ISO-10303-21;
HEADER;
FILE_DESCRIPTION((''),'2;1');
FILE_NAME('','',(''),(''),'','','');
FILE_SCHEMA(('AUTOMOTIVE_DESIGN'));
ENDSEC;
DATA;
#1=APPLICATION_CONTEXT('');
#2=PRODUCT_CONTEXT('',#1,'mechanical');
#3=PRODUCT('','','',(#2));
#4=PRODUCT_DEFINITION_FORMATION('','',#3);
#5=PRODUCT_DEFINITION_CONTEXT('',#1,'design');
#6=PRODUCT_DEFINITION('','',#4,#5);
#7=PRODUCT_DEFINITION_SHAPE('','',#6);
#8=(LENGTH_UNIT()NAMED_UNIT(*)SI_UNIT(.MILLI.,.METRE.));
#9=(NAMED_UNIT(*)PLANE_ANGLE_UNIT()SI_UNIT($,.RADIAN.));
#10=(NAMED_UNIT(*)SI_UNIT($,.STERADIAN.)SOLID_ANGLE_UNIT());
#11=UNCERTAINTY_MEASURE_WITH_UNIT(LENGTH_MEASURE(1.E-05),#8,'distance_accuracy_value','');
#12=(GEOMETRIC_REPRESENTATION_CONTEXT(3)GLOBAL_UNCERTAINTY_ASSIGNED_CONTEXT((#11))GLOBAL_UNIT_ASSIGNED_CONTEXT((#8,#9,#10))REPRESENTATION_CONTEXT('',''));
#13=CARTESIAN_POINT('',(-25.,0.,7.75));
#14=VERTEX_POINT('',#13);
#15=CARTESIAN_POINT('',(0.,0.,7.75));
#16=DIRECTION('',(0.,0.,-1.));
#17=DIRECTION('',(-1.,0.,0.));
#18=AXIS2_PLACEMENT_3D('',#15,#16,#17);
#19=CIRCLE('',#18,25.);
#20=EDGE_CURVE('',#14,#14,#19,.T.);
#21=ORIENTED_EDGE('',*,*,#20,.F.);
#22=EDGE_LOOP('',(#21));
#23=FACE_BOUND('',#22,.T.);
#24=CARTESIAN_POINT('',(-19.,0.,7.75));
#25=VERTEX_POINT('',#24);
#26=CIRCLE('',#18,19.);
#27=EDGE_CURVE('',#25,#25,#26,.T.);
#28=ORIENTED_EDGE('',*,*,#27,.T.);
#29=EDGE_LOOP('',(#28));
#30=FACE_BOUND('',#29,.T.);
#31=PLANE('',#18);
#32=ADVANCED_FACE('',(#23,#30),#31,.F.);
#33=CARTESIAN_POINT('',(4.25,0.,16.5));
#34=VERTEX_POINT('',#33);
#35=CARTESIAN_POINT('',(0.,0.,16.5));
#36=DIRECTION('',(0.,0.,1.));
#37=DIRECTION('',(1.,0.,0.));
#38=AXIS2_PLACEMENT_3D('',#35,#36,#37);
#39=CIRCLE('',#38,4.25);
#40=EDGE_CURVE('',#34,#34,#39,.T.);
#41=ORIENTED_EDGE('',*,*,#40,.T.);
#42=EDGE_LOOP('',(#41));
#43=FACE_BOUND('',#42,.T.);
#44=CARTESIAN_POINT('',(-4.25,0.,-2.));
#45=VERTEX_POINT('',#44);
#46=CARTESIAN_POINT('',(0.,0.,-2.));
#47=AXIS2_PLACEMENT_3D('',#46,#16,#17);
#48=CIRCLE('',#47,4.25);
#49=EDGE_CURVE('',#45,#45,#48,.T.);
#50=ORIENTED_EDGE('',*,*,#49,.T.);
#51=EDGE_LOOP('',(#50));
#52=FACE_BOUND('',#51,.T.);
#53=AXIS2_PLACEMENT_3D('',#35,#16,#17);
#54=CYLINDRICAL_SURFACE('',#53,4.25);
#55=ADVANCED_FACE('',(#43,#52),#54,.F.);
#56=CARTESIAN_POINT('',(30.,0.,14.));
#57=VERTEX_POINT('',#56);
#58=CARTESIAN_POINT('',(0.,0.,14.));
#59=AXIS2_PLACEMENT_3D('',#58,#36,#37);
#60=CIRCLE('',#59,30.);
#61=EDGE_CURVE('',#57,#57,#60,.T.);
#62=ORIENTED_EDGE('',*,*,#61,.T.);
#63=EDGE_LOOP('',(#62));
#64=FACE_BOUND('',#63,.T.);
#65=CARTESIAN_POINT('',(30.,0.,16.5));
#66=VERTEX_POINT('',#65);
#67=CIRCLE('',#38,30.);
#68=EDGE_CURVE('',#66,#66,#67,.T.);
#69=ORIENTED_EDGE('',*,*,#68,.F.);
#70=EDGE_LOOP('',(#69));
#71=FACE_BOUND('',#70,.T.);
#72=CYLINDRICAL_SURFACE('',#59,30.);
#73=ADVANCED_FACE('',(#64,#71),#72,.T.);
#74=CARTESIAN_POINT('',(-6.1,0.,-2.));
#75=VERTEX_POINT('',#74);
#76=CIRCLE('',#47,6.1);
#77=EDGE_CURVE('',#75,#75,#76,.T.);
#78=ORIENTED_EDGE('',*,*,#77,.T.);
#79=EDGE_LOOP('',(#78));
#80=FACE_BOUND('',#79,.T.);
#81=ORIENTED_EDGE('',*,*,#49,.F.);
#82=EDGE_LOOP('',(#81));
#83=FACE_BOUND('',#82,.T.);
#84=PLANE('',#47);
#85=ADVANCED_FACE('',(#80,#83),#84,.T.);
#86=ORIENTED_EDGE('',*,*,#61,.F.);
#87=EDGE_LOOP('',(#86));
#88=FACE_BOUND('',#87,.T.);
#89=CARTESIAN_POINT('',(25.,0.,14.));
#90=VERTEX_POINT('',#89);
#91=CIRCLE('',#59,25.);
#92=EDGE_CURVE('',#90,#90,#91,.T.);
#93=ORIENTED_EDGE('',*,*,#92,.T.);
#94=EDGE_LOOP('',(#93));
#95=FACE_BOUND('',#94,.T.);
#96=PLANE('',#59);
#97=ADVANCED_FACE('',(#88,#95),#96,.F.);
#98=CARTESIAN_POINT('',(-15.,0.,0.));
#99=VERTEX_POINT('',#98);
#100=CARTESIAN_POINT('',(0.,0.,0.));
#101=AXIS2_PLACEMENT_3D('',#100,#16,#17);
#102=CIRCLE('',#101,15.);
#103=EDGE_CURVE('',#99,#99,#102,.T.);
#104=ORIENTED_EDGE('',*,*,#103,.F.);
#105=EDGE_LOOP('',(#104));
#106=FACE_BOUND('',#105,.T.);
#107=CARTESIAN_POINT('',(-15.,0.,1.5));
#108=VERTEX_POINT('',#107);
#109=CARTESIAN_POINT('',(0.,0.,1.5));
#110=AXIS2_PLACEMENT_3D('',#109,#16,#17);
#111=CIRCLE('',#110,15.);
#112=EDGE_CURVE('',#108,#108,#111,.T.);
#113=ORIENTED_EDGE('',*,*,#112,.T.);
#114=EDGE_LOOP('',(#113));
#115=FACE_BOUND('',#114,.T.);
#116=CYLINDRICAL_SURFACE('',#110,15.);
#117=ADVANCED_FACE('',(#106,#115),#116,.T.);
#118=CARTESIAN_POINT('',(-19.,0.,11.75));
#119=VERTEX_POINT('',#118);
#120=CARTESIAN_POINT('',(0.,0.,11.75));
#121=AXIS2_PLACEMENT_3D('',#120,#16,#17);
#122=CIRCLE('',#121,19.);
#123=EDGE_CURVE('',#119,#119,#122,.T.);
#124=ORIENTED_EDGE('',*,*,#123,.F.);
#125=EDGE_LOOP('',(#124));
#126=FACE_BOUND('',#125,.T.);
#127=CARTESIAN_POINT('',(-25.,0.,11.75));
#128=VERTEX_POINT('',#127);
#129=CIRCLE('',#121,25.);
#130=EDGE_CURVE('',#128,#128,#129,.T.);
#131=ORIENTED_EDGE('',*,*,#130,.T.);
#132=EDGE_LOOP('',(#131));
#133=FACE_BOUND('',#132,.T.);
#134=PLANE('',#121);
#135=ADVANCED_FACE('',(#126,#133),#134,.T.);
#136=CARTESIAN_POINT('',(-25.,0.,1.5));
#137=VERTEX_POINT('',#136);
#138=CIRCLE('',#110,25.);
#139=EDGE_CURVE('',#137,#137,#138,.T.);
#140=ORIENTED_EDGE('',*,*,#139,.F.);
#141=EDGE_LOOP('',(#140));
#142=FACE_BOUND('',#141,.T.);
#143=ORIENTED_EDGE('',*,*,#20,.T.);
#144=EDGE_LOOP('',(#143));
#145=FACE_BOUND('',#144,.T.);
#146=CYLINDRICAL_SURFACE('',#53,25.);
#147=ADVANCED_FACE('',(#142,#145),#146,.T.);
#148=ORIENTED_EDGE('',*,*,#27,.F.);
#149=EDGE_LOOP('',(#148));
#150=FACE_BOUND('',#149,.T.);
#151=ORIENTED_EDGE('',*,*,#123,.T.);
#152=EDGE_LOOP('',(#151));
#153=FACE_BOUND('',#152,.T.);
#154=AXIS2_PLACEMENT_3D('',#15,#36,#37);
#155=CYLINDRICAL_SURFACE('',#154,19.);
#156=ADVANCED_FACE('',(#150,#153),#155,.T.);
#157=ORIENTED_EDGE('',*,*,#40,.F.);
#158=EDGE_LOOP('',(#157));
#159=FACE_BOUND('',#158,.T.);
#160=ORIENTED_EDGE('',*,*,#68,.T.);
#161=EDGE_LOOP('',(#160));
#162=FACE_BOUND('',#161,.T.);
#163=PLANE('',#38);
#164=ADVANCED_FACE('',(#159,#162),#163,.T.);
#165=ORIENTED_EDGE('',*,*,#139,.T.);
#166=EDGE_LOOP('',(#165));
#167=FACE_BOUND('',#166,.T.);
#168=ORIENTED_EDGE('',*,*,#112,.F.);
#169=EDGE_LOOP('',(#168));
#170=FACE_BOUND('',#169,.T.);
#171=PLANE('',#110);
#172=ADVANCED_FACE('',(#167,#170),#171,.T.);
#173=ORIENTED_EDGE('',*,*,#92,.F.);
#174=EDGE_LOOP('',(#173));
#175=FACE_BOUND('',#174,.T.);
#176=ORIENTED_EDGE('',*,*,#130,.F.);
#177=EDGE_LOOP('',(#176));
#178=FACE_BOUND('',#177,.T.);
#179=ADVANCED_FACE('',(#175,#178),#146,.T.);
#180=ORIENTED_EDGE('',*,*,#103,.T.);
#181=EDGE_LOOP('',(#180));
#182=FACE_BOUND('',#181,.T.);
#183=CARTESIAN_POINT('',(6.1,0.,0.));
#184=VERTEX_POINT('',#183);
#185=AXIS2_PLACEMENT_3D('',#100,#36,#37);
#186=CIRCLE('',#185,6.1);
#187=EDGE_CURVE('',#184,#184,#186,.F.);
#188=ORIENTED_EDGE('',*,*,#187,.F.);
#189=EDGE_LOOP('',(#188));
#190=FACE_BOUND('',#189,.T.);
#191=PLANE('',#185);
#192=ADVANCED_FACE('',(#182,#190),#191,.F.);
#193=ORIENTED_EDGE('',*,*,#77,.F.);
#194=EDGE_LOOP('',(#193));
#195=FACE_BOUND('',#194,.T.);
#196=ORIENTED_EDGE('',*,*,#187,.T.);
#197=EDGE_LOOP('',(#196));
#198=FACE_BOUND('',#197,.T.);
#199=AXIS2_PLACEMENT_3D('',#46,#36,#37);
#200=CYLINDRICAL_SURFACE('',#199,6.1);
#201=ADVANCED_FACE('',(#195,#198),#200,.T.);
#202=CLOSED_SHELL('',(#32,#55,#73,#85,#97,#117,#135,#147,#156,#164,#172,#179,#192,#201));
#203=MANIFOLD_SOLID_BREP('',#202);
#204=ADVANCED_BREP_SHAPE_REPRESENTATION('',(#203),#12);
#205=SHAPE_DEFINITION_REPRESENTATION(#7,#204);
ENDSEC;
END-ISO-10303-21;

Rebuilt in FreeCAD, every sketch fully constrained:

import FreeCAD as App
import Part
import Sketcher
from FreeCAD import Vector
Q = App.Units.Quantity

doc = App.newDocument("Part")
body = doc.addObject("PartDesign::Body", "Body")

sketch1 = body.newObject("Sketcher::SketchObject", "Sketch")
sketch1.AttachmentSupport = (doc.getObject("XY_Plane"), [""])
sketch1.MapMode = "FlatFace"
sketch1.addGeometry([
    Part.Circle(Vector(0, 0, 0), Vector(0, 0, 1), 25),
    Part.Circle(Vector(0, 0, 0), Vector(0, 0, 1), 11),
], False)
sketch1.addConstraint([
    Sketcher.Constraint("Coincident", 0, 3, -1, 1),
    Sketcher.Constraint("Coincident", 1, 3, -1, 1),
    Sketcher.Constraint("Diameter", 0, Q("50 mm")),
    Sketcher.Constraint("Diameter", 1, Q("22 mm")),
])
pad1 = body.newObject("PartDesign::Pad", "Pad")
pad1.Profile = sketch1
pad1.Length = 16.5

sketch2 = body.newObject("Sketcher::SketchObject", "Sketch001")
sketch2.AttachmentSupport = (doc.getObject("XY_Plane"), [""])
sketch2.MapMode = "FlatFace"
sketch2.AttachmentOffset = App.Placement(Vector(0, 0, 6), App.Rotation())
sketch2.addGeometry([
    Part.Circle(Vector(0, 0, 0), Vector(0, 0, 1), 11),
    Part.Circle(Vector(0, 0, 0), Vector(0, 0, 1), 10),
], False)
sketch2.addConstraint([
    Sketcher.Constraint("Coincident", 0, 3, -1, 1),
    Sketcher.Constraint("Coincident", 1, 3, -1, 1),
    Sketcher.Constraint("Diameter", 0, Q("22 mm")),
    Sketcher.Constraint("Diameter", 1, Q("19 mm")),
])
pad2 = body.newObject("PartDesign::Pad", "Pad001")
pad2.Profile = sketch2
pad2.Length = 10.5

sketch3 = body.newObject("Sketcher::SketchObject", "Sketch002")
sketch3.AttachmentSupport = (doc.getObject("XY_Plane"), [""])
sketch3.MapMode = "FlatFace"
sketch3.AttachmentOffset = App.Placement(Vector(0, 0, 14.5), App.Rotation())
sketch3.addGeometry([
    Part.Circle(Vector(0, 0, 0), Vector(0, 0, 1), 11),
    Part.Circle(Vector(0, 0, 0), Vector(0, 0, 1), 4),
], False)
sketch3.addConstraint([
    Sketcher.Constraint("Coincident", 0, 3, -1, 1),
    Sketcher.Constraint("Coincident", 1, 3, -1, 1),
    Sketcher.Constraint("Diameter", 0, Q("22 mm")),
    Sketcher.Constraint("Diameter", 1, Q("8 mm")),
])
pad3 = body.newObject("PartDesign::Pad", "Pad002")
pad3.Profile = sketch3
pad3.Length = 2

sketch4 = body.newObject("Sketcher::SketchObject", "Sketch003")
sketch4.AttachmentSupport = (doc.getObject("XY_Plane"), [""])
sketch4.MapMode = "FlatFace"
sketch4.AttachmentOffset = App.Placement(Vector(0, 0, 14), App.Rotation())
sketch4.addGeometry([
    Part.Circle(Vector(0, 0, 0), Vector(0, 0, 1), 30),
    Part.Circle(Vector(0, 0, 0), Vector(0, 0, 1), 25),
], False)
sketch4.addConstraint([
    Sketcher.Constraint("Coincident", 0, 3, -1, 1),
    Sketcher.Constraint("Coincident", 1, 3, -1, 1),
    Sketcher.Constraint("Diameter", 0, Q("60 mm")),
    Sketcher.Constraint("Diameter", 1, Q("50 mm")),
])
pad4 = body.newObject("PartDesign::Pad", "Pad003")
pad4.Profile = sketch4
pad4.Length = 2.5

sketch5 = body.newObject("Sketcher::SketchObject", "Sketch004")
sketch5.AttachmentSupport = (doc.getObject("XY_Plane"), [""])
sketch5.MapMode = "FlatFace"
sketch5.AttachmentOffset = App.Placement(Vector(0, 0, 7.75), App.Rotation())
sketch5.addGeometry([
    Part.Circle(Vector(0, 0, 0), Vector(0, 0, 1), 25),
    Part.Circle(Vector(0, 0, 0), Vector(0, 0, 1), 19),
], False)
sketch5.addConstraint([
    Sketcher.Constraint("Coincident", 0, 3, -1, 1),
    Sketcher.Constraint("Coincident", 1, 3, -1, 1),
    Sketcher.Constraint("Diameter", 0, Q("50 mm")),
    Sketcher.Constraint("Diameter", 1, Q("38 mm")),
])
pocket1 = body.newObject("PartDesign::Pocket", "Pocket")
pocket1.Profile = sketch5
pocket1.Length = 4
pocket1.Reversed = True

sketch6 = body.newObject("Sketcher::SketchObject", "Sketch005")
sketch6.AttachmentSupport = (doc.getObject("XY_Plane"), [""])
sketch6.MapMode = "FlatFace"
sketch6.addGeometry([
    Part.Circle(Vector(0, 0, 0), Vector(0, 0, 1), 11),
    Part.Circle(Vector(0, 0, 0), Vector(0, 0, 1), 4.2),
], False)
sketch6.addConstraint([
    Sketcher.Constraint("Coincident", 0, 3, -1, 1),
    Sketcher.Constraint("Coincident", 1, 3, -1, 1),
    Sketcher.Constraint("Diameter", 0, Q("22 mm")),
    Sketcher.Constraint("Diameter", 1, Q("8.5 mm")),
])
pad5 = body.newObject("PartDesign::Pad", "Pad004")
pad5.Profile = sketch6
pad5.Length = 14.5

sketch7 = body.newObject("Sketcher::SketchObject", "Sketch006")
sketch7.AttachmentSupport = (doc.getObject("XY_Plane"), [""])
sketch7.MapMode = "FlatFace"
sketch7.AttachmentOffset = App.Placement(Vector(0, 0, -2), App.Rotation())
sketch7.addGeometry([
    Part.Circle(Vector(0, 0, 0), Vector(0, 0, 1), 6.1),
    Part.Circle(Vector(0, 0, 0), Vector(0, 0, 1), 4),
], False)
sketch7.addConstraint([
    Sketcher.Constraint("Coincident", 0, 3, -1, 1),
    Sketcher.Constraint("Coincident", 1, 3, -1, 1),
    Sketcher.Constraint("Diameter", 1, Q("8 mm")),
    Sketcher.Constraint("Diameter", 0, Q("12.2 mm")),
])
pad6 = body.newObject("PartDesign::Pad", "Pad005")
pad6.Profile = sketch7
pad6.Length = 2

sketch8 = body.newObject("Sketcher::SketchObject", "Sketch007")
sketch8.AttachmentSupport = (doc.getObject("XY_Plane"), [""])
sketch8.MapMode = "FlatFace"
sketch8.addGeometry([
    Part.Circle(Vector(0, 0, 0), Vector(0, 0, 1), 25),
    Part.Circle(Vector(0, 0, 0), Vector(0, 0, 1), 15),
], False)
sketch8.addConstraint([
    Sketcher.Constraint("Coincident", 0, 3, -1, 1),
    Sketcher.Constraint("Coincident", 1, 3, -1, 1),
    Sketcher.Constraint("Diameter", 0, Q("50 mm")),
    Sketcher.Constraint("Diameter", 1, Q("30 mm")),
])
pocket2 = body.newObject("PartDesign::Pocket", "Pocket001")
pocket2.Profile = sketch8
pocket2.Length = 1.5
pocket2.Reversed = True

sketch9 = body.newObject("Sketcher::SketchObject", "Sketch008")
sketch9.AttachmentSupport = (doc.getObject("XY_Plane"), [""])
sketch9.MapMode = "FlatFace"
sketch9.AttachmentOffset = App.Placement(Vector(0, 0, 14.5), App.Rotation())
sketch9.addGeometry(Part.Circle(Vector(0, 0, 0), Vector(0, 0, 1), 4.2), False)
sketch9.addConstraint([
    Sketcher.Constraint("Coincident", 0, 3, -1, 1),
    Sketcher.Constraint("Diameter", 0, Q("8.5 mm")),
])
pocket3 = body.newObject("PartDesign::Pocket", "Pocket002")
pocket3.Profile = sketch9
pocket3.Length = 10
pocket3.Reversed = True

sketch10 = body.newObject("Sketcher::SketchObject", "Sketch009")
sketch10.AttachmentSupport = (doc.getObject("XY_Plane"), [""])
sketch10.MapMode = "FlatFace"
sketch10.AttachmentOffset = App.Placement(Vector(0, 0, -10), App.Rotation())
sketch10.addGeometry(Part.Circle(Vector(0, 0, 0), Vector(0, 0, 1), 4.2), False)
sketch10.addConstraint([
    Sketcher.Constraint("Coincident", 0, 3, -1, 1),
    Sketcher.Constraint("Diameter", 0, Q("8.5 mm")),
])
pocket4 = body.newObject("PartDesign::Pocket", "Pocket003")
pocket4.Profile = sketch10
pocket4.Length = 10
pocket4.Reversed = True

doc.recompute()
